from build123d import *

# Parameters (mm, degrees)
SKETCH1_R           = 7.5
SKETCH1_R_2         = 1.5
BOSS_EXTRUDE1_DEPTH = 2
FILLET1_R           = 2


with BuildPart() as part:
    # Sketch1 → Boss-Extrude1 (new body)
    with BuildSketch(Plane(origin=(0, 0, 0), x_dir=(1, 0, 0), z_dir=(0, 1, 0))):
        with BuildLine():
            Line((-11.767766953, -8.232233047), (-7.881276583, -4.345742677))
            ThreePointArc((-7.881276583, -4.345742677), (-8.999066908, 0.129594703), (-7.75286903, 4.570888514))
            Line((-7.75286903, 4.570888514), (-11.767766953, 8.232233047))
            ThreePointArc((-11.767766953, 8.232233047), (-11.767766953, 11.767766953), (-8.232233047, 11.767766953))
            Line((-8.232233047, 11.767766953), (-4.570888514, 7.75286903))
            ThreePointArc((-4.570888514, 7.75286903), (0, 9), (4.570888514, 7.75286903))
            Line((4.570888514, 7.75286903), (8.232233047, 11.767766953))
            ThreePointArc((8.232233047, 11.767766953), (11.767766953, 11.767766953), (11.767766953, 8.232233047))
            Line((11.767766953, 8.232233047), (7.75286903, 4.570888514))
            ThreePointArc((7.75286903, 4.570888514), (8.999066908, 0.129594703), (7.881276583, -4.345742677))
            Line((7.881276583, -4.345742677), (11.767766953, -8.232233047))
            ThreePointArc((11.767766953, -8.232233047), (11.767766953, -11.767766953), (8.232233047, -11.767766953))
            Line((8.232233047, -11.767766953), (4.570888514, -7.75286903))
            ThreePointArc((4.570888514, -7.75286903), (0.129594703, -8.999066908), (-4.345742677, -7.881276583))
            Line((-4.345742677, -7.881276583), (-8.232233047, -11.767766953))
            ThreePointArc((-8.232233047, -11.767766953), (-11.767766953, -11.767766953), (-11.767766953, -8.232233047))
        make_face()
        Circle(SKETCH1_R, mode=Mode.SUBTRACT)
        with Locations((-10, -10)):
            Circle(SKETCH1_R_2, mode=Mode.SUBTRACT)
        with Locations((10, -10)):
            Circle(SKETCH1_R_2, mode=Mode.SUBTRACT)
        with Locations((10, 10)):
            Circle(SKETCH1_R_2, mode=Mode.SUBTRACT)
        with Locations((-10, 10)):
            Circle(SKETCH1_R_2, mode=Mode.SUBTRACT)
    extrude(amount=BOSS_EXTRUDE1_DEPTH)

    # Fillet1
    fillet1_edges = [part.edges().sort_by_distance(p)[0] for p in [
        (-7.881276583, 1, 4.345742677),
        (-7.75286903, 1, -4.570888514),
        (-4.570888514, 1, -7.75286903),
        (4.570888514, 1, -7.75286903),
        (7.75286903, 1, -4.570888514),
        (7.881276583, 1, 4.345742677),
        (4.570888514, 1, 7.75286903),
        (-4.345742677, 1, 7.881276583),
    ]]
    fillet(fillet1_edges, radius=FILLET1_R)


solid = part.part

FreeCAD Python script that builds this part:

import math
import FreeCAD as App
import Part
import Sketcher
from FreeCAD import Vector


def edges_at(feature, points):
    """Names of the edges that pass closest to the given points."""
    edges = feature.Shape.Edges
    near = lambda p: min(range(len(edges)), key=lambda i: edges[i].distToShape(Part.Vertex(*p))[0])
    return sorted({f"Edge{near(p) + 1}" for p in points})

doc = App.newDocument("Part")
body = doc.addObject("PartDesign::Body", "Body")

# Sketch on XZ plane
sketch1 = body.newObject("Sketcher::SketchObject", "Sketch")
sketch1.AttachmentSupport = (doc.getObject("XZ_Plane"), [""])
sketch1.MapMode = "FlatFace"
sketch1.addGeometry([
    Part.LineSegment(Vector(-7.881277, 4.345743, 0), Vector(-11.767767, 8.232233, 0)),  # 0
    Part.ArcOfCircle(Part.Circle(Vector(-10, 10, 0), Vector(0, 0, 1), 2.5), math.radians(45), math.radians(225)),  # 1
    Part.LineSegment(Vector(-8.232233, 11.767767, 0), Vector(-4.345743, 7.881277, 0)),  # 2
    Part.ArcOfCircle(Part.Circle(Vector(0, 0, 0), Vector(0, 0, 1), 9), math.radians(59.477512), math.radians(118.87238)),  # 3
    Part.LineSegment(Vector(4.570889, 7.752869, 0), Vector(8.232233, 11.767767, 0)),  # 4
    Part.ArcOfCircle(Part.Circle(Vector(10, 10, 0), Vector(0, 0, 1), 2.5), math.radians(-45), math.radians(135)),  # 5
    Part.LineSegment(Vector(11.767767, 8.232233, 0), Vector(7.881277, 4.345743, 0)),  # 6
    Part.ArcOfCircle(Part.Circle(Vector(0, 0, 0), Vector(0, 0, 1), 9), math.radians(-30.522488), math.radians(28.87238)),  # 7
    Part.LineSegment(Vector(7.752869, -4.570889, 0), Vector(11.767767, -8.232233, 0)),  # 8
    Part.ArcOfCircle(Part.Circle(Vector(10, -10, 0), Vector(0, 0, 1), 2.5), math.radians(-135), math.radians(45)),  # 9
    Part.LineSegment(Vector(8.232233, -11.767767, 0), Vector(4.570889, -7.752869, 0)),  # 10
    Part.ArcOfCircle(Part.Circle(Vector(0, 0, 0), Vector(0, 0, 1), 9), math.radians(-120.522488), math.radians(-59.477512)),  # 11
    Part.LineSegment(Vector(-4.570889, -7.752869, 0), Vector(-8.232233, -11.767767, 0)),  # 12
    Part.ArcOfCircle(Part.Circle(Vector(-10, -10, 0), Vector(0, 0, 1), 2.5), math.radians(135), math.radians(315)),  # 13
    Part.LineSegment(Vector(-11.767767, -8.232233, 0), Vector(-7.752869, -4.570889, 0)),  # 14
    Part.ArcOfCircle(Part.Circle(Vector(0, 0, 0), Vector(0, 0, 1), 9), math.radians(151.12762), math.radians(210.522488)),  # 15
    Part.Circle(Vector(10, 10, 0), Vector(0, 0, 1), 1.5),  # 16
    Part.Circle(Vector(-10, 10, 0), Vector(0, 0, 1), 1.5),  # 17
    Part.Circle(Vector(10, -10, 0), Vector(0, 0, 1), 1.5),  # 18
    Part.Circle(Vector(0, 0, 0), Vector(0, 0, 1), 7.5),  # 19
    Part.Circle(Vector(-10, -10, 0), Vector(0, 0, 1), 1.5),  # 20
], False)
sketch1.addConstraint([
    Sketcher.Constraint("Tangent", 0, 2, 1, 2),
    Sketcher.Constraint("Tangent", 1, 1, 2, 1),
    Sketcher.Constraint("Coincident", 2, 2, 3, 2),
    Sketcher.Constraint("Coincident", 3, 1, 4, 1),
    Sketcher.Constraint("Coincident", 4, 2, 5, 2),
    Sketcher.Constraint("Tangent", 5, 1, 6, 1),
    Sketcher.Constraint("Coincident", 6, 2, 7, 2),
    Sketcher.Constraint("Coincident", 7, 1, 8, 1),
    Sketcher.Constraint("Coincident", 8, 2, 9, 2),
    Sketcher.Constraint("Coincident", 9, 1, 10, 1),
    Sketcher.Constraint("Coincident", 10, 2, 11, 2),
    Sketcher.Constraint("Coincident", 11, 1, 12, 1),
    Sketcher.Constraint("Coincident", 12, 2, 13, 2),
    Sketcher.Constraint("Coincident", 13, 1, 14, 1),
    Sketcher.Constraint("Coincident", 14, 2, 15, 2),
    Sketcher.Constraint("Coincident", 15, 1, 0, 1),
    Sketcher.Constraint("Coincident", 3, 3, -1, 1),
    Sketcher.Constraint("Coincident", 7, 3, -1, 1),
    Sketcher.Constraint("Coincident", 11, 3, -1, 1),
    Sketcher.Constraint("Coincident", 15, 3, -1, 1),
    Sketcher.Constraint("Coincident", 19, 3, -1, 1),
    Sketcher.Constraint("Coincident", 16, 3, 5, 3),
    Sketcher.Constraint("Coincident", 17, 3, 1, 3),
    Sketcher.Constraint("Coincident", 18, 3, 9, 3),
    Sketcher.Constraint("Coincident", 20, 3, 13, 3),
    Sketcher.Constraint("Equal", 1, 5),
    Sketcher.Constraint("Equal", 3, 7),
    Sketcher.Constraint("Equal", 5, 9),
    Sketcher.Constraint("Equal", 7, 11),
    Sketcher.Constraint("Equal", 9, 13),
    Sketcher.Constraint("Equal", 11, 15),
    Sketcher.Constraint("Equal", 16, 17),
    Sketcher.Constraint("Equal", 17, 18),
    Sketcher.Constraint("Equal", 18, 20),
    Sketcher.Constraint("Symmetric", 1, 3, 9, 3, -1, 1),
    Sketcher.Constraint("Symmetric", 5, 3, 13, 3, -1, 1),
    Sketcher.Constraint("Symmetric", 1, 3, 5, 3, -2),
    Sketcher.Constraint("Parallel", 0, 2),
    Sketcher.Constraint("Perpendicular", 2, 6),
    Sketcher.Constraint("Perpendicular", 4, 8),
    Sketcher.Constraint("Perpendicular", 8, 12),
    Sketcher.Constraint("Perpendicular", 10, 14),
    Sketcher.Constraint("Horizontal", 1, 1, 4, 2),
    Sketcher.Constraint("Horizontal", 0, 2, 5, 1),
    Sketcher.Constraint("Horizontal", 10, 2, 11, 1),
    Sketcher.Constraint("Horizontal", 9, 1, 12, 2),
    Sketcher.Constraint("Horizontal", 8, 2, 13, 1),
    Sketcher.Constraint("Vertical", 5, 1, 8, 2),
    Sketcher.Constraint("Vertical", 4, 2, 9, 1),
    Sketcher.Constraint("Equal", 0, 2),
    Sketcher.Constraint("Diameter", 16, 3.0),
    Sketcher.Constraint("Diameter", 19, 15.0),
    Sketcher.Constraint("Radius", 3, 9.0),
    Sketcher.Constraint("Radius", 1, 2.5),
    Sketcher.Constraint("DistanceX", 1, 3, -1, 1, 10.0),
    Sketcher.Constraint("DistanceX", -1, 1, 3, 1, 4.570889),
])
pad1 = body.newObject("PartDesign::Pad", "Pad")
pad1.Profile = sketch1
pad1.Length = 2
pad1.Reversed = True
doc.recompute()

fillet = body.newObject("PartDesign::Fillet", "Fillet")
fillet.Base = (pad1, edges_at(pad1, [
    (-7.881, 1, 4.346),
    (-7.753, 1, -4.571),
    (-4.571, 1, -7.753),
    (4.571, 1, -7.753),
    (7.753, 1, -4.571),
    (7.881, 1, 4.346),
    (4.571, 1, 7.753),
    (-4.346, 1, 7.881),
]))
fillet.Radius = 2

doc.recompute()
